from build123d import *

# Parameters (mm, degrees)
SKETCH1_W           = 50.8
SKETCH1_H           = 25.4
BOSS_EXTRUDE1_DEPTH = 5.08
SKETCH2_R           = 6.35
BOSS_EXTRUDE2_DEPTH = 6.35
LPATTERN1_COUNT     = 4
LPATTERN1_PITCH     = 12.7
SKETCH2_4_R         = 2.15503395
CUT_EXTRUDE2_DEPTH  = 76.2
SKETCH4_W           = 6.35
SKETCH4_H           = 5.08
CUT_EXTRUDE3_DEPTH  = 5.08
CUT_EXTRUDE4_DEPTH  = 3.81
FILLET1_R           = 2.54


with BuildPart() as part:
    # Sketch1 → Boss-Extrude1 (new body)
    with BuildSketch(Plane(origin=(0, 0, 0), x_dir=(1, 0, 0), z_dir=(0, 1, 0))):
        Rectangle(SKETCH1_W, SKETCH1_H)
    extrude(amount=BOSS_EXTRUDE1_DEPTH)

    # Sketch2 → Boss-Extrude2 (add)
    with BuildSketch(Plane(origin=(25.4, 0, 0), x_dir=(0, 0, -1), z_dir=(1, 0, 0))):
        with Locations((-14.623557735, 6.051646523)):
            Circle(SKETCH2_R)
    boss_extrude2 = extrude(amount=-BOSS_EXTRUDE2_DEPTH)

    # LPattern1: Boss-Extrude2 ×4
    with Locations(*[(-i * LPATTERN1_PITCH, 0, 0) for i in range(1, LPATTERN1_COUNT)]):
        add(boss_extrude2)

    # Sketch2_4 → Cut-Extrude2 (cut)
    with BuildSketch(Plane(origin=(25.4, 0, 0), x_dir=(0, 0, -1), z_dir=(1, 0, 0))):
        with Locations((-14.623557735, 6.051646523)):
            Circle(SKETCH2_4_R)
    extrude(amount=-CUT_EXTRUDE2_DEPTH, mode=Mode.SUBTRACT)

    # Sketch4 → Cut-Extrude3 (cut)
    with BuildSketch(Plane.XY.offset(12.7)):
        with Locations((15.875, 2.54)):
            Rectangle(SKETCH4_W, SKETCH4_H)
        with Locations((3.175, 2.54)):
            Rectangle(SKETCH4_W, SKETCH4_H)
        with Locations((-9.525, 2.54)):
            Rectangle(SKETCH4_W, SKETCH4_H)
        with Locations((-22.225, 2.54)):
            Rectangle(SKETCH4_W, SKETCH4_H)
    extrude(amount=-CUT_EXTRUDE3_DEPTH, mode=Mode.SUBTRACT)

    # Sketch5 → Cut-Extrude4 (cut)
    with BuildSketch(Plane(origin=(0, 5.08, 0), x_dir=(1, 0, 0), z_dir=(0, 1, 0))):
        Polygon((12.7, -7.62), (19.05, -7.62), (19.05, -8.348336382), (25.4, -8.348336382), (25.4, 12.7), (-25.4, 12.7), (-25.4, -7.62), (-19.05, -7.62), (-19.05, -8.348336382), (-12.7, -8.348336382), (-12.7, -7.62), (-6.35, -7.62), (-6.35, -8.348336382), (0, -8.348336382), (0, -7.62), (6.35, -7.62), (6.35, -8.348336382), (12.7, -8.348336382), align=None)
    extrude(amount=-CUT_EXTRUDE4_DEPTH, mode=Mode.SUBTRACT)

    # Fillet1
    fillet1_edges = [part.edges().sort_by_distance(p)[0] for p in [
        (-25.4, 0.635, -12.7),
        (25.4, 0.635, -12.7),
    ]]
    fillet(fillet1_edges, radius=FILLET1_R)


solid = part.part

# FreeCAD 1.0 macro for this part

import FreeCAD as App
import Part
import Sketcher

V = App.Vector
Q = App.Units.Quantity


def edges_at(feature, points):
    """Names of the edges that pass closest to the given points."""
    edges = feature.Shape.Edges
    near = lambda p: min(range(len(edges)), key=lambda i: edges[i].distToShape(Part.Vertex(*p))[0])
    return sorted({f"Edge{near(p) + 1}" for p in points})

doc = App.newDocument("Part")
body = doc.addObject("PartDesign::Body", "Body")

# Sketch on XZ plane
sketch1 = body.newObject("Sketcher::SketchObject", "Sketch")
sketch1.AttachmentSupport = (doc.getObject("XZ_Plane"), [""])
sketch1.MapMode = "FlatFace"
sketch1.addGeometry(Part.LineSegment(V(-25.4, -12.7, 0), V(-25.4, 12.7, 0)), False)
sketch1.addGeometry(Part.LineSegment(V(-25.4, 12.7, 0), V(25.4, 12.7, 0)), False)
sketch1.addGeometry(Part.LineSegment(V(25.4, 12.7, 0), V(25.4, -12.7, 0)), False)
sketch1.addGeometry(Part.LineSegment(V(25.4, -12.7, 0), V(-25.4, -12.7, 0)), False)
sketch1.addConstraint(Sketcher.Constraint("Coincident", 0, 2, 1, 1))
sketch1.addConstraint(Sketcher.Constraint("Coincident", 1, 2, 2, 1))
sketch1.addConstraint(Sketcher.Constraint("Coincident", 2, 2, 3, 1))
sketch1.addConstraint(Sketcher.Constraint("Coincident", 3, 2, 0, 1))
sketch1.addConstraint(Sketcher.Constraint("Vertical", 0))
sketch1.addConstraint(Sketcher.Constraint("Horizontal", 1))
sketch1.addConstraint(Sketcher.Constraint("Vertical", 2))
sketch1.addConstraint(Sketcher.Constraint("Horizontal", 3))
sketch1.addConstraint(Sketcher.Constraint("Symmetric", 0, 2, 2, 2, -1, 1))
sketch1.addConstraint(Sketcher.Constraint("DistanceX", 1, 1, 1, 2, Q("2 in")))
sketch1.addConstraint(Sketcher.Constraint("DistanceY", 0, 1, 0, 2, Q("1 in")))
pad1 = body.newObject("PartDesign::Pad", "Pad")
pad1.Profile = sketch1
pad1.Length = Q("0.2 in")
pad1.Reversed = True

# Sketch on YZ plane
sketch2 = body.newObject("Sketcher::SketchObject", "Sketch001")
sketch2.AttachmentSupport = (doc.getObject("YZ_Plane"), [""])
sketch2.MapMode = "FlatFace"
sketch2.AttachmentOffset = App.Placement(V(0, 0, 1 * 25.4), App.Rotation())
sketch2.addGeometry(Part.Circle(V(6.051647, 14.623558, 0), V(0, 0, 1), 6.35), False)
sketch2.addConstraint(Sketcher.Constraint("Diameter", 0, Q("0.5 in")))
sketch2.addConstraint(Sketcher.Constraint("DistanceX", -1, 1, 0, 3, 6.051647))
sketch2.addConstraint(Sketcher.Constraint("DistanceY", -1, 1, 0, 3, 14.623558))
pad2 = body.newObject("PartDesign::Pad", "Pad001")
pad2.Profile = sketch2
pad2.Length = Q("0.25 in")
pad2.Reversed = True
doc.recompute()

linearpattern = body.newObject("PartDesign::LinearPattern", "LinearPattern")
linearpattern.Originals = [pad2]
linearpattern.Direction = (doc.getObject("X_Axis"), [""])
linearpattern.Mode = "offset"
linearpattern.Offset = Q("0.5 in")
linearpattern.Occurrences = 4
linearpattern.Reversed = True
body.Tip = linearpattern

# Sketch on YZ plane
sketch3 = body.newObject("Sketcher::SketchObject", "Sketch002")
sketch3.AttachmentSupport = (doc.getObject("YZ_Plane"), [""])
sketch3.MapMode = "FlatFace"
sketch3.AttachmentOffset = App.Placement(V(0, 0, 1 * 25.4), App.Rotation())
sketch3.addGeometry(Part.Circle(V(6.051647, 14.623558, 0), V(0, 0, 1), 2.155034), False)
sketch3.addConstraint(Sketcher.Constraint("Diameter", 0, 4.310068))
sketch3.addConstraint(Sketcher.Constraint("DistanceX", -1, 1, 0, 3, 6.051647))
sketch3.addConstraint(Sketcher.Constraint("DistanceY", -1, 1, 0, 3, 14.623558))
pocket1 = body.newObject("PartDesign::Pocket", "Pocket")
pocket1.Profile = sketch3
pocket1.Length = Q("3 in")

# Sketch on XY plane
sketch4 = body.newObject("Sketcher::SketchObject", "Sketch003")
sketch4.AttachmentSupport = (doc.getObject("XY_Plane"), [""])
sketch4.MapMode = "FlatFace"
sketch4.AttachmentOffset = App.Placement(V(0, 0, 0.5 * 25.4), App.Rotation())
sketch4.addGeometry(Part.LineSegment(V(12.7, 5.08, 0), V(12.7, 0, 0)), False)
sketch4.addGeometry(Part.LineSegment(V(12.7, 0, 0), V(19.05, 0, 0)), False)
sketch4.addGeometry(Part.LineSegment(V(19.05, 0, 0), V(19.05, 5.08, 0)), False)
sketch4.addGeometry(Part.LineSegment(V(19.05, 5.08, 0), V(12.7, 5.08, 0)), False)
sketch4.addGeometry(Part.LineSegment(V(0, 5.08, 0), V(0, 0, 0)), False)
sketch4.addGeometry(Part.LineSegment(V(0, 0, 0), V(6.35, 0, 0)), False)
sketch4.addGeometry(Part.LineSegment(V(6.35, 0, 0), V(6.35, 5.08, 0)), False)
sketch4.addGeometry(Part.LineSegment(V(6.35, 5.08, 0), V(0, 5.08, 0)), False)
sketch4.addGeometry(Part.LineSegment(V(-12.7, 5.08, 0), V(-12.7, 0, 0)), False)
sketch4.addGeometry(Part.LineSegment(V(-12.7, 0, 0), V(-6.35, 0, 0)), False)
sketch4.addGeometry(Part.LineSegment(V(-6.35, 0, 0), V(-6.35, 5.08, 0)), False)
sketch4.addGeometry(Part.LineSegment(V(-6.35, 5.08, 0), V(-12.7, 5.08, 0)), False)
sketch4.addGeometry(Part.LineSegment(V(-25.4, 5.08, 0), V(-25.4, 0, 0)), False)
sketch4.addGeometry(Part.LineSegment(V(-25.4, 0, 0), V(-19.05, 0, 0)), False)
sketch4.addGeometry(Part.LineSegment(V(-19.05, 0, 0), V(-19.05, 5.08, 0)), False)
sketch4.addGeometry(Part.LineSegment(V(-19.05, 5.08, 0), V(-25.4, 5.08, 0)), False)
sketch4.addConstraint(Sketcher.Constraint("Coincident", 0, 2, 1, 1))
sketch4.addConstraint(Sketcher.Constraint("Coincident", 1, 2, 2, 1))
sketch4.addConstraint(Sketcher.Constraint("Coincident", 2, 2, 3, 1))
sketch4.addConstraint(Sketcher.Constraint("Coincident", 3, 2, 0, 1))
sketch4.addConstraint(Sketcher.Constraint("Coincident", 4, 2, 5, 1))
sketch4.addConstraint(Sketcher.Constraint("Coincident", 5, 2, 6, 1))
sketch4.addConstraint(Sketcher.Constraint("Coincident", 6, 2, 7, 1))
sketch4.addConstraint(Sketcher.Constraint("Coincident", 7, 2, 4, 1))
sketch4.addConstraint(Sketcher.Constraint("Coincident", 8, 2, 9, 1))
sketch4.addConstraint(Sketcher.Constraint("Coincident", 9, 2, 10, 1))
sketch4.addConstraint(Sketcher.Constraint("Coincident", 10, 2, 11, 1))
sketch4.addConstraint(Sketcher.Constraint("Coincident", 11, 2, 8, 1))
sketch4.addConstraint(Sketcher.Constraint("Coincident", 12, 2, 13, 1))
sketch4.addConstraint(Sketcher.Constraint("Coincident", 13, 2, 14, 1))
sketch4.addConstraint(Sketcher.Constraint("Coincident", 14, 2, 15, 1))
sketch4.addConstraint(Sketcher.Constraint("Coincident", 15, 2, 12, 1))
sketch4.addConstraint(Sketcher.Constraint("Vertical", 0))
sketch4.addConstraint(Sketcher.Constraint("Horizontal", 1))
sketch4.addConstraint(Sketcher.Constraint("Vertical", 2))
sketch4.addConstraint(Sketcher.Constraint("Horizontal", 3))
sketch4.addConstraint(Sketcher.Constraint("Vertical", 4))
sketch4.addConstraint(Sketcher.Constraint("Horizontal", 5))
sketch4.addConstraint(Sketcher.Constraint("Vertical", 6))
sketch4.addConstraint(Sketcher.Constraint("Horizontal", 7))
sketch4.addConstraint(Sketcher.Constraint("Vertical", 8))
sketch4.addConstraint(Sketcher.Constraint("Horizontal", 9))
sketch4.addConstraint(Sketcher.Constraint("Vertical", 10))
sketch4.addConstraint(Sketcher.Constraint("Horizontal", 11))
sketch4.addConstraint(Sketcher.Constraint("Vertical", 12))
sketch4.addConstraint(Sketcher.Constraint("Horizontal", 13))
sketch4.addConstraint(Sketcher.Constraint("Vertical", 14))
sketch4.addConstraint(Sketcher.Constraint("Horizontal", 15))
sketch4.addConstraint(Sketcher.Constraint("Coincident", 4, 2, -1, 1))
sketch4.addConstraint(Sketcher.Constraint("Symmetric", 0, 2, 8, 2, -1, 1))
sketch4.addConstraint(Sketcher.Constraint("Symmetric", 5, 2, 9, 2, -1, 1))
sketch4.addConstraint(Sketcher.Constraint("Symmetric", 1, 2, 13, 2, -1, 1))
sketch4.addConstraint(Sketcher.Constraint("Horizontal", 3, 2, 6, 2))
sketch4.addConstraint(Sketcher.Constraint("Horizontal", 7, 2, 10, 2))
sketch4.addConstraint(Sketcher.Constraint("Horizontal", 11, 2, 14, 2))
sketch4.addConstraint(Sketcher.Constraint("Equal", 3, 5))
sketch4.addConstraint(Sketcher.Constraint("Equal", 7, 9))
sketch4.addConstraint(Sketcher.Constraint("Equal", 11, 13))
sketch4.addConstraint(Sketcher.Constraint("DistanceY", 0, 2, 0, 1, Q("0.2 in")))
sketch4.addConstraint(Sketcher.Constraint("DistanceX", 12, 2, -1, 1, Q("1 in")))
pocket2 = body.newObject("PartDesign::Pocket", "Pocket001")
pocket2.Profile = sketch4
pocket2.Length = Q("0.2 in")

# Sketch on XZ plane
sketch5 = body.newObject("Sketcher::SketchObject", "Sketch004")
sketch5.AttachmentSupport = (doc.getObject("XZ_Plane"), [""])
sketch5.MapMode = "FlatFace"
sketch5.AttachmentOffset = App.Placement(V(0, 0, -0.2 * 25.4), App.Rotation())
sketch5.addGeometry(Part.LineSegment(V(12.7, 7.62, 0), V(19.05, 7.62, 0)), False)
sketch5.addGeometry(Part.LineSegment(V(19.05, 7.62, 0), V(19.05, 8.348336, 0)), False)
sketch5.addGeometry(Part.LineSegment(V(19.05, 8.348336, 0), V(25.4, 8.348336, 0)), False)
sketch5.addGeometry(Part.LineSegment(V(25.4, 8.348336, 0), V(25.4, -12.7, 0)), False)
sketch5.addGeometry(Part.LineSegment(V(25.4, -12.7, 0), V(-25.4, -12.7, 0)), False)
sketch5.addGeometry(Part.LineSegment(V(-25.4, -12.7, 0), V(-25.4, 7.62, 0)), False)
sketch5.addGeometry(Part.LineSegment(V(-25.4, 7.62, 0), V(-19.05, 7.62, 0)), False)
sketch5.addGeometry(Part.LineSegment(V(-19.05, 7.62, 0), V(-19.05, 8.348336, 0)), False)
sketch5.addGeometry(Part.LineSegment(V(-19.05, 8.348336, 0), V(-12.7, 8.348336, 0)), False)
sketch5.addGeometry(Part.LineSegment(V(-12.7, 8.348336, 0), V(-12.7, 7.62, 0)), False)
sketch5.addGeometry(Part.LineSegment(V(-12.7, 7.62, 0), V(-6.35, 7.62, 0)), False)
sketch5.addGeometry(Part.LineSegment(V(-6.35, 7.62, 0), V(-6.35, 8.348336, 0)), False)
sketch5.addGeometry(Part.LineSegment(V(-6.35, 8.348336, 0), V(0, 8.348336, 0)), False)
sketch5.addGeometry(Part.LineSegment(V(0, 8.348336, 0), V(0, 7.62, 0)), False)
sketch5.addGeometry(Part.LineSegment(V(0, 7.62, 0), V(6.35, 7.62, 0)), False)
sketch5.addGeometry(Part.LineSegment(V(6.35, 7.62, 0), V(6.35, 8.348336, 0)), False)
sketch5.addGeometry(Part.LineSegment(V(6.35, 8.348336, 0), V(12.7, 8.348336, 0)), False)
sketch5.addGeometry(Part.LineSegment(V(12.7, 8.348336, 0), V(12.7, 7.62, 0)), False)
sketch5.addConstraint(Sketcher.Constraint("Coincident", 0, 2, 1, 1))
sketch5.addConstraint(Sketcher.Constraint("Coincident", 1, 2, 2, 1))
sketch5.addConstraint(Sketcher.Constraint("Coincident", 2, 2, 3, 1))
sketch5.addConstraint(Sketcher.Constraint("Coincident", 3, 2, 4, 1))
sketch5.addConstraint(Sketcher.Constraint("Coincident", 4, 2, 5, 1))
sketch5.addConstraint(Sketcher.Constraint("Coincident", 5, 2, 6, 1))
sketch5.addConstraint(Sketcher.Constraint("Coincident", 6, 2, 7, 1))
sketch5.addConstraint(Sketcher.Constraint("Coincident", 7, 2, 8, 1))
sketch5.addConstraint(Sketcher.Constraint("Coincident", 8, 2, 9, 1))
sketch5.addConstraint(Sketcher.Constraint("Coincident", 9, 2, 10, 1))
sketch5.addConstraint(Sketcher.Constraint("Coincident", 10, 2, 11, 1))
sketch5.addConstraint(Sketcher.Constraint("Coincident", 11, 2, 12, 1))
sketch5.addConstraint(Sketcher.Constraint("Coincident", 12, 2, 13, 1))
sketch5.addConstraint(Sketcher.Constraint("Coincident", 13, 2, 14, 1))
sketch5.addConstraint(Sketcher.Constraint("Coincident", 14, 2, 15, 1))
sketch5.addConstraint(Sketcher.Constraint("Coincident", 15, 2, 16, 1))
sketch5.addConstraint(Sketcher.Constraint("Coincident", 16, 2, 17, 1))
sketch5.addConstraint(Sketcher.Constraint("Coincident", 17, 2, 0, 1))
sketch5.addConstraint(Sketcher.Constraint("Horizontal", 0))
sketch5.addConstraint(Sketcher.Constraint("Vertical", 1))
sketch5.addConstraint(Sketcher.Constraint("Horizontal", 2))
sketch5.addConstraint(Sketcher.Constraint("Vertical", 3))
sketch5.addConstraint(Sketcher.Constraint("Horizontal", 4))
sketch5.addConstraint(Sketcher.Constraint("Vertical", 5))
sketch5.addConstraint(Sketcher.Constraint("Horizontal", 6))
sketch5.addConstraint(Sketcher.Constraint("Vertical", 7))
sketch5.addConstraint(Sketcher.Constraint("Horizontal", 8))
sketch5.addConstraint(Sketcher.Constraint("Vertical", 9))
sketch5.addConstraint(Sketcher.Constraint("Horizontal", 10))
sketch5.addConstraint(Sketcher.Constraint("Vertical", 11))
sketch5.addConstraint(Sketcher.Constraint("Horizontal", 12))
sketch5.addConstraint(Sketcher.Constraint("Vertical", 13))
sketch5.addConstraint(Sketcher.Constraint("Horizontal", 14))
sketch5.addConstraint(Sketcher.Constraint("Vertical", 15))
sketch5.addConstraint(Sketcher.Constraint("Horizontal", 16))
sketch5.addConstraint(Sketcher.Constraint("Vertical", 17))
sketch5.addConstraint(Sketcher.Constraint("Symmetric", 0, 2, 6, 2, -2))
sketch5.addConstraint(Sketcher.Constraint("Symmetric", 10, 2, 14, 2, -2))
sketch5.addConstraint(Sketcher.Constraint("Symmetric", 8, 2, 16, 2, -2))
sketch5.addConstraint(Sketcher.Constraint("PointOnObject", 12, 2, -2))
sketch5.addConstraint(Sketcher.Constraint("Horizontal", 2, 2, 7, 2))
sketch5.addConstraint(Sketcher.Constraint("Horizontal", 6, 2, 9, 2))
sketch5.addConstraint(Sketcher.Constraint("Horizontal", 8, 2, 11, 2))
sketch5.addConstraint(Sketcher.Constraint("Equal", 0, 2))
sketch5.addConstraint(Sketcher.Constraint("Equal", 2, 6))
sketch5.addConstraint(Sketcher.Constraint("Equal", 8, 10))
sketch5.addConstraint(Sketcher.Constraint("Equal", 10, 12))
sketch5.addConstraint(Sketcher.Constraint("DistanceX", 4, 2, 4, 1, Q("2 in")))
sketch5.addConstraint(Sketcher.Constraint("DistanceY", 5, 1, 5, 2, Q("0.8 in")))
sketch5.addConstraint(Sketcher.Constraint("DistanceY", -1, 1, 0, 2, Q("0.3 in")))
sketch5.addConstraint(Sketcher.Constraint("DistanceY", 1, 1, 1, 2, 0.728336))
pocket3 = body.newObject("PartDesign::Pocket", "Pocket002")
pocket3.Profile = sketch5
pocket3.Length = Q("0.15 in")
pocket3.Reversed = True
doc.recompute()

fillet = body.newObject("PartDesign::Fillet", "Fillet")
fillet.Base = (pocket3, edges_at(pocket3, [(-25.4, 0.635, -12.7), (25.4, 0.635, -12.7)]))
fillet.Radius = Q("0.1 in")

doc.recompute()
